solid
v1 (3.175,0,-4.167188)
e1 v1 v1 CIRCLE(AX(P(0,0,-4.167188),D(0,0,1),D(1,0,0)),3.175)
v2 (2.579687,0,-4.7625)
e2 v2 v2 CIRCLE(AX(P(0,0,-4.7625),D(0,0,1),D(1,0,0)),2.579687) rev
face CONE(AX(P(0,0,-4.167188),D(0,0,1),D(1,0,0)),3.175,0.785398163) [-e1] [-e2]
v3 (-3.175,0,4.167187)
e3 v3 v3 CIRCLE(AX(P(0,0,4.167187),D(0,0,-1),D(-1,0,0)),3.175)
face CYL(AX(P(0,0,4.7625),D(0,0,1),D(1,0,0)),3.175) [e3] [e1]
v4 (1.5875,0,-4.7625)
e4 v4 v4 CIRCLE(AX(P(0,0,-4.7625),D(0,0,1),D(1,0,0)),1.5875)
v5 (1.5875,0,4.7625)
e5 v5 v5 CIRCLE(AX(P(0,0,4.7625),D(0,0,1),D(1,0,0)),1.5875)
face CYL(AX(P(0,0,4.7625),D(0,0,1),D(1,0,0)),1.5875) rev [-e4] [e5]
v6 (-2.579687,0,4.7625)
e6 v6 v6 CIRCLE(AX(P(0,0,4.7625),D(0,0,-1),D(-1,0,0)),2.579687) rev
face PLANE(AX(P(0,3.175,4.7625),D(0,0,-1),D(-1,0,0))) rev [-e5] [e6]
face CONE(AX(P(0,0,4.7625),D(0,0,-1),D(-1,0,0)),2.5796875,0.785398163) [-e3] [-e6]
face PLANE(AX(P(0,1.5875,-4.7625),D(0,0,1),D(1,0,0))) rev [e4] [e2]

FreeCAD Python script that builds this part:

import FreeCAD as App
import Part
import Sketcher

V = App.Vector
Q = App.Units.Quantity


def edges_at(feature, points):
    """Names of the edges that pass closest to the given points."""
    edges = feature.Shape.Edges
    near = lambda p: min(range(len(edges)), key=lambda i: edges[i].distToShape(Part.Vertex(*p))[0])
    return sorted({f"Edge{near(p) + 1}" for p in points})


def add_polygon(sketch, points):
    """Adds a closed chain of lines whose ends are joined by coincident constraints."""
    first, n = sketch.GeometryCount, len(points)
    for a, b in zip(points, points[1:] + points[:1]):
        sketch.addGeometry(Part.LineSegment(App.Vector(*a, 0), App.Vector(*b, 0)), False)
    for i in range(n):
        sketch.addConstraint(Sketcher.Constraint("Coincident", first + i, 2, first + (i + 1) % n, 1))

doc = App.newDocument("Part")
body = doc.addObject("PartDesign::Body", "Body")

sketch1 = body.newObject("Sketcher::SketchObject", "Sketch")
sketch1.AttachmentSupport = (doc.getObject("YZ_Plane"), [""])
sketch1.MapMode = "FlatFace"
add_polygon(sketch1, [(3.2, 4.8), (1.6, 4.8), (1.6, -4.8), (3.2, -4.8)])
sketch1.addConstraint(Sketcher.Constraint("Horizontal", 0))
sketch1.addConstraint(Sketcher.Constraint("Vertical", 1))
sketch1.addConstraint(Sketcher.Constraint("Horizontal", 2))
sketch1.addConstraint(Sketcher.Constraint("Vertical", 3))
sketch1.addConstraint(Sketcher.Constraint("DistanceX", 0, 2, 0, 1, Q("0.0625 in")))
sketch1.addConstraint(Sketcher.Constraint("DistanceY", 1, 2, 1, 1, Q("0.375 in")))
sketch1.addConstraint(Sketcher.Constraint("DistanceX", -1, 1, 0, 2, Q("0.0625 in")))
sketch1.addConstraint(Sketcher.Constraint("DistanceY", -1, 1, 0, 2, Q("0.1875 in")))
revolution = body.newObject("PartDesign::Revolution", "Revolution")
revolution.Profile = sketch1
revolution.ReferenceAxis = (sketch1, ["V_Axis"])
revolution.Angle = 360
doc.recompute()

chamfer = body.newObject("PartDesign::Chamfer", "Chamfer")
chamfer.Base = (revolution, edges_at(revolution, [(-3.175, 0, 4.763), (-3.175, 0, -4.763)]))
chamfer.Size = 0.595313

doc.recompute()
